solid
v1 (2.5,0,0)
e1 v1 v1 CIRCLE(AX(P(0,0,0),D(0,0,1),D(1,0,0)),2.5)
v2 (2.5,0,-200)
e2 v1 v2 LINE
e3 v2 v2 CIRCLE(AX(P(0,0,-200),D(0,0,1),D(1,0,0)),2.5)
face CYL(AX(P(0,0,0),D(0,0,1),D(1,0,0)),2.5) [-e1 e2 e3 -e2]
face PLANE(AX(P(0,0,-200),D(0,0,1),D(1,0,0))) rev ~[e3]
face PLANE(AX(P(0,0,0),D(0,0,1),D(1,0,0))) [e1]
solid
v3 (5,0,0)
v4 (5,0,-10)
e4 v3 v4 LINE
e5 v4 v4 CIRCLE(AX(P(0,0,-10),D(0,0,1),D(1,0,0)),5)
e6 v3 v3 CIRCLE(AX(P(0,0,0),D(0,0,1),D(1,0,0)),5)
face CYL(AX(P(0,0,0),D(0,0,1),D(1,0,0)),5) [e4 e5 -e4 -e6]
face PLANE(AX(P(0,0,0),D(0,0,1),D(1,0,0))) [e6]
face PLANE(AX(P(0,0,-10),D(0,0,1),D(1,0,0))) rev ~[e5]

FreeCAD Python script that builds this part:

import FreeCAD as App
import Part
import Sketcher
from FreeCAD import Vector
Q = App.Units.Quantity

doc = App.newDocument("Part")
params = doc.addObject("Spreadsheet::Sheet", "Params")
for row, (alias, value) in enumerate([
    ("sketch1_diameter", "10 mm"),
    ("pad1_length", "10 mm"),
    ("sketch2_diameter", "5 mm"),
    ("pad2_length", "200 mm"),
], start=1):
    params.set(f"A{row}", alias)
    params.set(f"B{row}", "=" + value)
    params.setAlias(f"B{row}", alias)

body = doc.addObject("PartDesign::Body", "Body")

# Sketch on XY plane
sketch1 = body.newObject("Sketcher::SketchObject", "Sketch")
sketch1.AttachmentSupport = (doc.getObject("XY_Plane"), [""])
sketch1.MapMode = "FlatFace"
sketch1.addGeometry(Part.Circle(Vector(0, 0, 0), Vector(0, 0, 1), 5), False)
sketch1.addConstraint([
    Sketcher.Constraint("Coincident", 0, 3, -1, 1),
    Sketcher.Constraint("Diameter", 0, Q("10 mm")),
])
sketch1.setExpression("Constraints[1]", "Params.sketch1_diameter")
pad1 = body.newObject("PartDesign::Pad", "Pad")
pad1.Profile = sketch1
pad1.setExpression("Length", "Params.pad1_length")
pad1.Reversed = True
body2 = doc.addObject("PartDesign::Body", "Body001")

# Sketch on XY plane
sketch2 = body2.newObject("Sketcher::SketchObject", "Sketch001")
sketch2.AttachmentSupport = (doc.getObject("XY_Plane001"), [""])
sketch2.MapMode = "FlatFace"
sketch2.addGeometry(Part.Circle(Vector(0, 0, 0), Vector(0, 0, 1), 2.5), False)
sketch2.addConstraint([
    Sketcher.Constraint("Coincident", 0, 3, -1, 1),
    Sketcher.Constraint("Diameter", 0, Q("5 mm")),
])
sketch2.setExpression("Constraints[1]", "Params.sketch2_diameter")
pad2 = body2.newObject("PartDesign::Pad", "Pad001")
pad2.Profile = sketch2
pad2.setExpression("Length", "Params.pad2_length")
pad2.Reversed = True

doc.recompute()
